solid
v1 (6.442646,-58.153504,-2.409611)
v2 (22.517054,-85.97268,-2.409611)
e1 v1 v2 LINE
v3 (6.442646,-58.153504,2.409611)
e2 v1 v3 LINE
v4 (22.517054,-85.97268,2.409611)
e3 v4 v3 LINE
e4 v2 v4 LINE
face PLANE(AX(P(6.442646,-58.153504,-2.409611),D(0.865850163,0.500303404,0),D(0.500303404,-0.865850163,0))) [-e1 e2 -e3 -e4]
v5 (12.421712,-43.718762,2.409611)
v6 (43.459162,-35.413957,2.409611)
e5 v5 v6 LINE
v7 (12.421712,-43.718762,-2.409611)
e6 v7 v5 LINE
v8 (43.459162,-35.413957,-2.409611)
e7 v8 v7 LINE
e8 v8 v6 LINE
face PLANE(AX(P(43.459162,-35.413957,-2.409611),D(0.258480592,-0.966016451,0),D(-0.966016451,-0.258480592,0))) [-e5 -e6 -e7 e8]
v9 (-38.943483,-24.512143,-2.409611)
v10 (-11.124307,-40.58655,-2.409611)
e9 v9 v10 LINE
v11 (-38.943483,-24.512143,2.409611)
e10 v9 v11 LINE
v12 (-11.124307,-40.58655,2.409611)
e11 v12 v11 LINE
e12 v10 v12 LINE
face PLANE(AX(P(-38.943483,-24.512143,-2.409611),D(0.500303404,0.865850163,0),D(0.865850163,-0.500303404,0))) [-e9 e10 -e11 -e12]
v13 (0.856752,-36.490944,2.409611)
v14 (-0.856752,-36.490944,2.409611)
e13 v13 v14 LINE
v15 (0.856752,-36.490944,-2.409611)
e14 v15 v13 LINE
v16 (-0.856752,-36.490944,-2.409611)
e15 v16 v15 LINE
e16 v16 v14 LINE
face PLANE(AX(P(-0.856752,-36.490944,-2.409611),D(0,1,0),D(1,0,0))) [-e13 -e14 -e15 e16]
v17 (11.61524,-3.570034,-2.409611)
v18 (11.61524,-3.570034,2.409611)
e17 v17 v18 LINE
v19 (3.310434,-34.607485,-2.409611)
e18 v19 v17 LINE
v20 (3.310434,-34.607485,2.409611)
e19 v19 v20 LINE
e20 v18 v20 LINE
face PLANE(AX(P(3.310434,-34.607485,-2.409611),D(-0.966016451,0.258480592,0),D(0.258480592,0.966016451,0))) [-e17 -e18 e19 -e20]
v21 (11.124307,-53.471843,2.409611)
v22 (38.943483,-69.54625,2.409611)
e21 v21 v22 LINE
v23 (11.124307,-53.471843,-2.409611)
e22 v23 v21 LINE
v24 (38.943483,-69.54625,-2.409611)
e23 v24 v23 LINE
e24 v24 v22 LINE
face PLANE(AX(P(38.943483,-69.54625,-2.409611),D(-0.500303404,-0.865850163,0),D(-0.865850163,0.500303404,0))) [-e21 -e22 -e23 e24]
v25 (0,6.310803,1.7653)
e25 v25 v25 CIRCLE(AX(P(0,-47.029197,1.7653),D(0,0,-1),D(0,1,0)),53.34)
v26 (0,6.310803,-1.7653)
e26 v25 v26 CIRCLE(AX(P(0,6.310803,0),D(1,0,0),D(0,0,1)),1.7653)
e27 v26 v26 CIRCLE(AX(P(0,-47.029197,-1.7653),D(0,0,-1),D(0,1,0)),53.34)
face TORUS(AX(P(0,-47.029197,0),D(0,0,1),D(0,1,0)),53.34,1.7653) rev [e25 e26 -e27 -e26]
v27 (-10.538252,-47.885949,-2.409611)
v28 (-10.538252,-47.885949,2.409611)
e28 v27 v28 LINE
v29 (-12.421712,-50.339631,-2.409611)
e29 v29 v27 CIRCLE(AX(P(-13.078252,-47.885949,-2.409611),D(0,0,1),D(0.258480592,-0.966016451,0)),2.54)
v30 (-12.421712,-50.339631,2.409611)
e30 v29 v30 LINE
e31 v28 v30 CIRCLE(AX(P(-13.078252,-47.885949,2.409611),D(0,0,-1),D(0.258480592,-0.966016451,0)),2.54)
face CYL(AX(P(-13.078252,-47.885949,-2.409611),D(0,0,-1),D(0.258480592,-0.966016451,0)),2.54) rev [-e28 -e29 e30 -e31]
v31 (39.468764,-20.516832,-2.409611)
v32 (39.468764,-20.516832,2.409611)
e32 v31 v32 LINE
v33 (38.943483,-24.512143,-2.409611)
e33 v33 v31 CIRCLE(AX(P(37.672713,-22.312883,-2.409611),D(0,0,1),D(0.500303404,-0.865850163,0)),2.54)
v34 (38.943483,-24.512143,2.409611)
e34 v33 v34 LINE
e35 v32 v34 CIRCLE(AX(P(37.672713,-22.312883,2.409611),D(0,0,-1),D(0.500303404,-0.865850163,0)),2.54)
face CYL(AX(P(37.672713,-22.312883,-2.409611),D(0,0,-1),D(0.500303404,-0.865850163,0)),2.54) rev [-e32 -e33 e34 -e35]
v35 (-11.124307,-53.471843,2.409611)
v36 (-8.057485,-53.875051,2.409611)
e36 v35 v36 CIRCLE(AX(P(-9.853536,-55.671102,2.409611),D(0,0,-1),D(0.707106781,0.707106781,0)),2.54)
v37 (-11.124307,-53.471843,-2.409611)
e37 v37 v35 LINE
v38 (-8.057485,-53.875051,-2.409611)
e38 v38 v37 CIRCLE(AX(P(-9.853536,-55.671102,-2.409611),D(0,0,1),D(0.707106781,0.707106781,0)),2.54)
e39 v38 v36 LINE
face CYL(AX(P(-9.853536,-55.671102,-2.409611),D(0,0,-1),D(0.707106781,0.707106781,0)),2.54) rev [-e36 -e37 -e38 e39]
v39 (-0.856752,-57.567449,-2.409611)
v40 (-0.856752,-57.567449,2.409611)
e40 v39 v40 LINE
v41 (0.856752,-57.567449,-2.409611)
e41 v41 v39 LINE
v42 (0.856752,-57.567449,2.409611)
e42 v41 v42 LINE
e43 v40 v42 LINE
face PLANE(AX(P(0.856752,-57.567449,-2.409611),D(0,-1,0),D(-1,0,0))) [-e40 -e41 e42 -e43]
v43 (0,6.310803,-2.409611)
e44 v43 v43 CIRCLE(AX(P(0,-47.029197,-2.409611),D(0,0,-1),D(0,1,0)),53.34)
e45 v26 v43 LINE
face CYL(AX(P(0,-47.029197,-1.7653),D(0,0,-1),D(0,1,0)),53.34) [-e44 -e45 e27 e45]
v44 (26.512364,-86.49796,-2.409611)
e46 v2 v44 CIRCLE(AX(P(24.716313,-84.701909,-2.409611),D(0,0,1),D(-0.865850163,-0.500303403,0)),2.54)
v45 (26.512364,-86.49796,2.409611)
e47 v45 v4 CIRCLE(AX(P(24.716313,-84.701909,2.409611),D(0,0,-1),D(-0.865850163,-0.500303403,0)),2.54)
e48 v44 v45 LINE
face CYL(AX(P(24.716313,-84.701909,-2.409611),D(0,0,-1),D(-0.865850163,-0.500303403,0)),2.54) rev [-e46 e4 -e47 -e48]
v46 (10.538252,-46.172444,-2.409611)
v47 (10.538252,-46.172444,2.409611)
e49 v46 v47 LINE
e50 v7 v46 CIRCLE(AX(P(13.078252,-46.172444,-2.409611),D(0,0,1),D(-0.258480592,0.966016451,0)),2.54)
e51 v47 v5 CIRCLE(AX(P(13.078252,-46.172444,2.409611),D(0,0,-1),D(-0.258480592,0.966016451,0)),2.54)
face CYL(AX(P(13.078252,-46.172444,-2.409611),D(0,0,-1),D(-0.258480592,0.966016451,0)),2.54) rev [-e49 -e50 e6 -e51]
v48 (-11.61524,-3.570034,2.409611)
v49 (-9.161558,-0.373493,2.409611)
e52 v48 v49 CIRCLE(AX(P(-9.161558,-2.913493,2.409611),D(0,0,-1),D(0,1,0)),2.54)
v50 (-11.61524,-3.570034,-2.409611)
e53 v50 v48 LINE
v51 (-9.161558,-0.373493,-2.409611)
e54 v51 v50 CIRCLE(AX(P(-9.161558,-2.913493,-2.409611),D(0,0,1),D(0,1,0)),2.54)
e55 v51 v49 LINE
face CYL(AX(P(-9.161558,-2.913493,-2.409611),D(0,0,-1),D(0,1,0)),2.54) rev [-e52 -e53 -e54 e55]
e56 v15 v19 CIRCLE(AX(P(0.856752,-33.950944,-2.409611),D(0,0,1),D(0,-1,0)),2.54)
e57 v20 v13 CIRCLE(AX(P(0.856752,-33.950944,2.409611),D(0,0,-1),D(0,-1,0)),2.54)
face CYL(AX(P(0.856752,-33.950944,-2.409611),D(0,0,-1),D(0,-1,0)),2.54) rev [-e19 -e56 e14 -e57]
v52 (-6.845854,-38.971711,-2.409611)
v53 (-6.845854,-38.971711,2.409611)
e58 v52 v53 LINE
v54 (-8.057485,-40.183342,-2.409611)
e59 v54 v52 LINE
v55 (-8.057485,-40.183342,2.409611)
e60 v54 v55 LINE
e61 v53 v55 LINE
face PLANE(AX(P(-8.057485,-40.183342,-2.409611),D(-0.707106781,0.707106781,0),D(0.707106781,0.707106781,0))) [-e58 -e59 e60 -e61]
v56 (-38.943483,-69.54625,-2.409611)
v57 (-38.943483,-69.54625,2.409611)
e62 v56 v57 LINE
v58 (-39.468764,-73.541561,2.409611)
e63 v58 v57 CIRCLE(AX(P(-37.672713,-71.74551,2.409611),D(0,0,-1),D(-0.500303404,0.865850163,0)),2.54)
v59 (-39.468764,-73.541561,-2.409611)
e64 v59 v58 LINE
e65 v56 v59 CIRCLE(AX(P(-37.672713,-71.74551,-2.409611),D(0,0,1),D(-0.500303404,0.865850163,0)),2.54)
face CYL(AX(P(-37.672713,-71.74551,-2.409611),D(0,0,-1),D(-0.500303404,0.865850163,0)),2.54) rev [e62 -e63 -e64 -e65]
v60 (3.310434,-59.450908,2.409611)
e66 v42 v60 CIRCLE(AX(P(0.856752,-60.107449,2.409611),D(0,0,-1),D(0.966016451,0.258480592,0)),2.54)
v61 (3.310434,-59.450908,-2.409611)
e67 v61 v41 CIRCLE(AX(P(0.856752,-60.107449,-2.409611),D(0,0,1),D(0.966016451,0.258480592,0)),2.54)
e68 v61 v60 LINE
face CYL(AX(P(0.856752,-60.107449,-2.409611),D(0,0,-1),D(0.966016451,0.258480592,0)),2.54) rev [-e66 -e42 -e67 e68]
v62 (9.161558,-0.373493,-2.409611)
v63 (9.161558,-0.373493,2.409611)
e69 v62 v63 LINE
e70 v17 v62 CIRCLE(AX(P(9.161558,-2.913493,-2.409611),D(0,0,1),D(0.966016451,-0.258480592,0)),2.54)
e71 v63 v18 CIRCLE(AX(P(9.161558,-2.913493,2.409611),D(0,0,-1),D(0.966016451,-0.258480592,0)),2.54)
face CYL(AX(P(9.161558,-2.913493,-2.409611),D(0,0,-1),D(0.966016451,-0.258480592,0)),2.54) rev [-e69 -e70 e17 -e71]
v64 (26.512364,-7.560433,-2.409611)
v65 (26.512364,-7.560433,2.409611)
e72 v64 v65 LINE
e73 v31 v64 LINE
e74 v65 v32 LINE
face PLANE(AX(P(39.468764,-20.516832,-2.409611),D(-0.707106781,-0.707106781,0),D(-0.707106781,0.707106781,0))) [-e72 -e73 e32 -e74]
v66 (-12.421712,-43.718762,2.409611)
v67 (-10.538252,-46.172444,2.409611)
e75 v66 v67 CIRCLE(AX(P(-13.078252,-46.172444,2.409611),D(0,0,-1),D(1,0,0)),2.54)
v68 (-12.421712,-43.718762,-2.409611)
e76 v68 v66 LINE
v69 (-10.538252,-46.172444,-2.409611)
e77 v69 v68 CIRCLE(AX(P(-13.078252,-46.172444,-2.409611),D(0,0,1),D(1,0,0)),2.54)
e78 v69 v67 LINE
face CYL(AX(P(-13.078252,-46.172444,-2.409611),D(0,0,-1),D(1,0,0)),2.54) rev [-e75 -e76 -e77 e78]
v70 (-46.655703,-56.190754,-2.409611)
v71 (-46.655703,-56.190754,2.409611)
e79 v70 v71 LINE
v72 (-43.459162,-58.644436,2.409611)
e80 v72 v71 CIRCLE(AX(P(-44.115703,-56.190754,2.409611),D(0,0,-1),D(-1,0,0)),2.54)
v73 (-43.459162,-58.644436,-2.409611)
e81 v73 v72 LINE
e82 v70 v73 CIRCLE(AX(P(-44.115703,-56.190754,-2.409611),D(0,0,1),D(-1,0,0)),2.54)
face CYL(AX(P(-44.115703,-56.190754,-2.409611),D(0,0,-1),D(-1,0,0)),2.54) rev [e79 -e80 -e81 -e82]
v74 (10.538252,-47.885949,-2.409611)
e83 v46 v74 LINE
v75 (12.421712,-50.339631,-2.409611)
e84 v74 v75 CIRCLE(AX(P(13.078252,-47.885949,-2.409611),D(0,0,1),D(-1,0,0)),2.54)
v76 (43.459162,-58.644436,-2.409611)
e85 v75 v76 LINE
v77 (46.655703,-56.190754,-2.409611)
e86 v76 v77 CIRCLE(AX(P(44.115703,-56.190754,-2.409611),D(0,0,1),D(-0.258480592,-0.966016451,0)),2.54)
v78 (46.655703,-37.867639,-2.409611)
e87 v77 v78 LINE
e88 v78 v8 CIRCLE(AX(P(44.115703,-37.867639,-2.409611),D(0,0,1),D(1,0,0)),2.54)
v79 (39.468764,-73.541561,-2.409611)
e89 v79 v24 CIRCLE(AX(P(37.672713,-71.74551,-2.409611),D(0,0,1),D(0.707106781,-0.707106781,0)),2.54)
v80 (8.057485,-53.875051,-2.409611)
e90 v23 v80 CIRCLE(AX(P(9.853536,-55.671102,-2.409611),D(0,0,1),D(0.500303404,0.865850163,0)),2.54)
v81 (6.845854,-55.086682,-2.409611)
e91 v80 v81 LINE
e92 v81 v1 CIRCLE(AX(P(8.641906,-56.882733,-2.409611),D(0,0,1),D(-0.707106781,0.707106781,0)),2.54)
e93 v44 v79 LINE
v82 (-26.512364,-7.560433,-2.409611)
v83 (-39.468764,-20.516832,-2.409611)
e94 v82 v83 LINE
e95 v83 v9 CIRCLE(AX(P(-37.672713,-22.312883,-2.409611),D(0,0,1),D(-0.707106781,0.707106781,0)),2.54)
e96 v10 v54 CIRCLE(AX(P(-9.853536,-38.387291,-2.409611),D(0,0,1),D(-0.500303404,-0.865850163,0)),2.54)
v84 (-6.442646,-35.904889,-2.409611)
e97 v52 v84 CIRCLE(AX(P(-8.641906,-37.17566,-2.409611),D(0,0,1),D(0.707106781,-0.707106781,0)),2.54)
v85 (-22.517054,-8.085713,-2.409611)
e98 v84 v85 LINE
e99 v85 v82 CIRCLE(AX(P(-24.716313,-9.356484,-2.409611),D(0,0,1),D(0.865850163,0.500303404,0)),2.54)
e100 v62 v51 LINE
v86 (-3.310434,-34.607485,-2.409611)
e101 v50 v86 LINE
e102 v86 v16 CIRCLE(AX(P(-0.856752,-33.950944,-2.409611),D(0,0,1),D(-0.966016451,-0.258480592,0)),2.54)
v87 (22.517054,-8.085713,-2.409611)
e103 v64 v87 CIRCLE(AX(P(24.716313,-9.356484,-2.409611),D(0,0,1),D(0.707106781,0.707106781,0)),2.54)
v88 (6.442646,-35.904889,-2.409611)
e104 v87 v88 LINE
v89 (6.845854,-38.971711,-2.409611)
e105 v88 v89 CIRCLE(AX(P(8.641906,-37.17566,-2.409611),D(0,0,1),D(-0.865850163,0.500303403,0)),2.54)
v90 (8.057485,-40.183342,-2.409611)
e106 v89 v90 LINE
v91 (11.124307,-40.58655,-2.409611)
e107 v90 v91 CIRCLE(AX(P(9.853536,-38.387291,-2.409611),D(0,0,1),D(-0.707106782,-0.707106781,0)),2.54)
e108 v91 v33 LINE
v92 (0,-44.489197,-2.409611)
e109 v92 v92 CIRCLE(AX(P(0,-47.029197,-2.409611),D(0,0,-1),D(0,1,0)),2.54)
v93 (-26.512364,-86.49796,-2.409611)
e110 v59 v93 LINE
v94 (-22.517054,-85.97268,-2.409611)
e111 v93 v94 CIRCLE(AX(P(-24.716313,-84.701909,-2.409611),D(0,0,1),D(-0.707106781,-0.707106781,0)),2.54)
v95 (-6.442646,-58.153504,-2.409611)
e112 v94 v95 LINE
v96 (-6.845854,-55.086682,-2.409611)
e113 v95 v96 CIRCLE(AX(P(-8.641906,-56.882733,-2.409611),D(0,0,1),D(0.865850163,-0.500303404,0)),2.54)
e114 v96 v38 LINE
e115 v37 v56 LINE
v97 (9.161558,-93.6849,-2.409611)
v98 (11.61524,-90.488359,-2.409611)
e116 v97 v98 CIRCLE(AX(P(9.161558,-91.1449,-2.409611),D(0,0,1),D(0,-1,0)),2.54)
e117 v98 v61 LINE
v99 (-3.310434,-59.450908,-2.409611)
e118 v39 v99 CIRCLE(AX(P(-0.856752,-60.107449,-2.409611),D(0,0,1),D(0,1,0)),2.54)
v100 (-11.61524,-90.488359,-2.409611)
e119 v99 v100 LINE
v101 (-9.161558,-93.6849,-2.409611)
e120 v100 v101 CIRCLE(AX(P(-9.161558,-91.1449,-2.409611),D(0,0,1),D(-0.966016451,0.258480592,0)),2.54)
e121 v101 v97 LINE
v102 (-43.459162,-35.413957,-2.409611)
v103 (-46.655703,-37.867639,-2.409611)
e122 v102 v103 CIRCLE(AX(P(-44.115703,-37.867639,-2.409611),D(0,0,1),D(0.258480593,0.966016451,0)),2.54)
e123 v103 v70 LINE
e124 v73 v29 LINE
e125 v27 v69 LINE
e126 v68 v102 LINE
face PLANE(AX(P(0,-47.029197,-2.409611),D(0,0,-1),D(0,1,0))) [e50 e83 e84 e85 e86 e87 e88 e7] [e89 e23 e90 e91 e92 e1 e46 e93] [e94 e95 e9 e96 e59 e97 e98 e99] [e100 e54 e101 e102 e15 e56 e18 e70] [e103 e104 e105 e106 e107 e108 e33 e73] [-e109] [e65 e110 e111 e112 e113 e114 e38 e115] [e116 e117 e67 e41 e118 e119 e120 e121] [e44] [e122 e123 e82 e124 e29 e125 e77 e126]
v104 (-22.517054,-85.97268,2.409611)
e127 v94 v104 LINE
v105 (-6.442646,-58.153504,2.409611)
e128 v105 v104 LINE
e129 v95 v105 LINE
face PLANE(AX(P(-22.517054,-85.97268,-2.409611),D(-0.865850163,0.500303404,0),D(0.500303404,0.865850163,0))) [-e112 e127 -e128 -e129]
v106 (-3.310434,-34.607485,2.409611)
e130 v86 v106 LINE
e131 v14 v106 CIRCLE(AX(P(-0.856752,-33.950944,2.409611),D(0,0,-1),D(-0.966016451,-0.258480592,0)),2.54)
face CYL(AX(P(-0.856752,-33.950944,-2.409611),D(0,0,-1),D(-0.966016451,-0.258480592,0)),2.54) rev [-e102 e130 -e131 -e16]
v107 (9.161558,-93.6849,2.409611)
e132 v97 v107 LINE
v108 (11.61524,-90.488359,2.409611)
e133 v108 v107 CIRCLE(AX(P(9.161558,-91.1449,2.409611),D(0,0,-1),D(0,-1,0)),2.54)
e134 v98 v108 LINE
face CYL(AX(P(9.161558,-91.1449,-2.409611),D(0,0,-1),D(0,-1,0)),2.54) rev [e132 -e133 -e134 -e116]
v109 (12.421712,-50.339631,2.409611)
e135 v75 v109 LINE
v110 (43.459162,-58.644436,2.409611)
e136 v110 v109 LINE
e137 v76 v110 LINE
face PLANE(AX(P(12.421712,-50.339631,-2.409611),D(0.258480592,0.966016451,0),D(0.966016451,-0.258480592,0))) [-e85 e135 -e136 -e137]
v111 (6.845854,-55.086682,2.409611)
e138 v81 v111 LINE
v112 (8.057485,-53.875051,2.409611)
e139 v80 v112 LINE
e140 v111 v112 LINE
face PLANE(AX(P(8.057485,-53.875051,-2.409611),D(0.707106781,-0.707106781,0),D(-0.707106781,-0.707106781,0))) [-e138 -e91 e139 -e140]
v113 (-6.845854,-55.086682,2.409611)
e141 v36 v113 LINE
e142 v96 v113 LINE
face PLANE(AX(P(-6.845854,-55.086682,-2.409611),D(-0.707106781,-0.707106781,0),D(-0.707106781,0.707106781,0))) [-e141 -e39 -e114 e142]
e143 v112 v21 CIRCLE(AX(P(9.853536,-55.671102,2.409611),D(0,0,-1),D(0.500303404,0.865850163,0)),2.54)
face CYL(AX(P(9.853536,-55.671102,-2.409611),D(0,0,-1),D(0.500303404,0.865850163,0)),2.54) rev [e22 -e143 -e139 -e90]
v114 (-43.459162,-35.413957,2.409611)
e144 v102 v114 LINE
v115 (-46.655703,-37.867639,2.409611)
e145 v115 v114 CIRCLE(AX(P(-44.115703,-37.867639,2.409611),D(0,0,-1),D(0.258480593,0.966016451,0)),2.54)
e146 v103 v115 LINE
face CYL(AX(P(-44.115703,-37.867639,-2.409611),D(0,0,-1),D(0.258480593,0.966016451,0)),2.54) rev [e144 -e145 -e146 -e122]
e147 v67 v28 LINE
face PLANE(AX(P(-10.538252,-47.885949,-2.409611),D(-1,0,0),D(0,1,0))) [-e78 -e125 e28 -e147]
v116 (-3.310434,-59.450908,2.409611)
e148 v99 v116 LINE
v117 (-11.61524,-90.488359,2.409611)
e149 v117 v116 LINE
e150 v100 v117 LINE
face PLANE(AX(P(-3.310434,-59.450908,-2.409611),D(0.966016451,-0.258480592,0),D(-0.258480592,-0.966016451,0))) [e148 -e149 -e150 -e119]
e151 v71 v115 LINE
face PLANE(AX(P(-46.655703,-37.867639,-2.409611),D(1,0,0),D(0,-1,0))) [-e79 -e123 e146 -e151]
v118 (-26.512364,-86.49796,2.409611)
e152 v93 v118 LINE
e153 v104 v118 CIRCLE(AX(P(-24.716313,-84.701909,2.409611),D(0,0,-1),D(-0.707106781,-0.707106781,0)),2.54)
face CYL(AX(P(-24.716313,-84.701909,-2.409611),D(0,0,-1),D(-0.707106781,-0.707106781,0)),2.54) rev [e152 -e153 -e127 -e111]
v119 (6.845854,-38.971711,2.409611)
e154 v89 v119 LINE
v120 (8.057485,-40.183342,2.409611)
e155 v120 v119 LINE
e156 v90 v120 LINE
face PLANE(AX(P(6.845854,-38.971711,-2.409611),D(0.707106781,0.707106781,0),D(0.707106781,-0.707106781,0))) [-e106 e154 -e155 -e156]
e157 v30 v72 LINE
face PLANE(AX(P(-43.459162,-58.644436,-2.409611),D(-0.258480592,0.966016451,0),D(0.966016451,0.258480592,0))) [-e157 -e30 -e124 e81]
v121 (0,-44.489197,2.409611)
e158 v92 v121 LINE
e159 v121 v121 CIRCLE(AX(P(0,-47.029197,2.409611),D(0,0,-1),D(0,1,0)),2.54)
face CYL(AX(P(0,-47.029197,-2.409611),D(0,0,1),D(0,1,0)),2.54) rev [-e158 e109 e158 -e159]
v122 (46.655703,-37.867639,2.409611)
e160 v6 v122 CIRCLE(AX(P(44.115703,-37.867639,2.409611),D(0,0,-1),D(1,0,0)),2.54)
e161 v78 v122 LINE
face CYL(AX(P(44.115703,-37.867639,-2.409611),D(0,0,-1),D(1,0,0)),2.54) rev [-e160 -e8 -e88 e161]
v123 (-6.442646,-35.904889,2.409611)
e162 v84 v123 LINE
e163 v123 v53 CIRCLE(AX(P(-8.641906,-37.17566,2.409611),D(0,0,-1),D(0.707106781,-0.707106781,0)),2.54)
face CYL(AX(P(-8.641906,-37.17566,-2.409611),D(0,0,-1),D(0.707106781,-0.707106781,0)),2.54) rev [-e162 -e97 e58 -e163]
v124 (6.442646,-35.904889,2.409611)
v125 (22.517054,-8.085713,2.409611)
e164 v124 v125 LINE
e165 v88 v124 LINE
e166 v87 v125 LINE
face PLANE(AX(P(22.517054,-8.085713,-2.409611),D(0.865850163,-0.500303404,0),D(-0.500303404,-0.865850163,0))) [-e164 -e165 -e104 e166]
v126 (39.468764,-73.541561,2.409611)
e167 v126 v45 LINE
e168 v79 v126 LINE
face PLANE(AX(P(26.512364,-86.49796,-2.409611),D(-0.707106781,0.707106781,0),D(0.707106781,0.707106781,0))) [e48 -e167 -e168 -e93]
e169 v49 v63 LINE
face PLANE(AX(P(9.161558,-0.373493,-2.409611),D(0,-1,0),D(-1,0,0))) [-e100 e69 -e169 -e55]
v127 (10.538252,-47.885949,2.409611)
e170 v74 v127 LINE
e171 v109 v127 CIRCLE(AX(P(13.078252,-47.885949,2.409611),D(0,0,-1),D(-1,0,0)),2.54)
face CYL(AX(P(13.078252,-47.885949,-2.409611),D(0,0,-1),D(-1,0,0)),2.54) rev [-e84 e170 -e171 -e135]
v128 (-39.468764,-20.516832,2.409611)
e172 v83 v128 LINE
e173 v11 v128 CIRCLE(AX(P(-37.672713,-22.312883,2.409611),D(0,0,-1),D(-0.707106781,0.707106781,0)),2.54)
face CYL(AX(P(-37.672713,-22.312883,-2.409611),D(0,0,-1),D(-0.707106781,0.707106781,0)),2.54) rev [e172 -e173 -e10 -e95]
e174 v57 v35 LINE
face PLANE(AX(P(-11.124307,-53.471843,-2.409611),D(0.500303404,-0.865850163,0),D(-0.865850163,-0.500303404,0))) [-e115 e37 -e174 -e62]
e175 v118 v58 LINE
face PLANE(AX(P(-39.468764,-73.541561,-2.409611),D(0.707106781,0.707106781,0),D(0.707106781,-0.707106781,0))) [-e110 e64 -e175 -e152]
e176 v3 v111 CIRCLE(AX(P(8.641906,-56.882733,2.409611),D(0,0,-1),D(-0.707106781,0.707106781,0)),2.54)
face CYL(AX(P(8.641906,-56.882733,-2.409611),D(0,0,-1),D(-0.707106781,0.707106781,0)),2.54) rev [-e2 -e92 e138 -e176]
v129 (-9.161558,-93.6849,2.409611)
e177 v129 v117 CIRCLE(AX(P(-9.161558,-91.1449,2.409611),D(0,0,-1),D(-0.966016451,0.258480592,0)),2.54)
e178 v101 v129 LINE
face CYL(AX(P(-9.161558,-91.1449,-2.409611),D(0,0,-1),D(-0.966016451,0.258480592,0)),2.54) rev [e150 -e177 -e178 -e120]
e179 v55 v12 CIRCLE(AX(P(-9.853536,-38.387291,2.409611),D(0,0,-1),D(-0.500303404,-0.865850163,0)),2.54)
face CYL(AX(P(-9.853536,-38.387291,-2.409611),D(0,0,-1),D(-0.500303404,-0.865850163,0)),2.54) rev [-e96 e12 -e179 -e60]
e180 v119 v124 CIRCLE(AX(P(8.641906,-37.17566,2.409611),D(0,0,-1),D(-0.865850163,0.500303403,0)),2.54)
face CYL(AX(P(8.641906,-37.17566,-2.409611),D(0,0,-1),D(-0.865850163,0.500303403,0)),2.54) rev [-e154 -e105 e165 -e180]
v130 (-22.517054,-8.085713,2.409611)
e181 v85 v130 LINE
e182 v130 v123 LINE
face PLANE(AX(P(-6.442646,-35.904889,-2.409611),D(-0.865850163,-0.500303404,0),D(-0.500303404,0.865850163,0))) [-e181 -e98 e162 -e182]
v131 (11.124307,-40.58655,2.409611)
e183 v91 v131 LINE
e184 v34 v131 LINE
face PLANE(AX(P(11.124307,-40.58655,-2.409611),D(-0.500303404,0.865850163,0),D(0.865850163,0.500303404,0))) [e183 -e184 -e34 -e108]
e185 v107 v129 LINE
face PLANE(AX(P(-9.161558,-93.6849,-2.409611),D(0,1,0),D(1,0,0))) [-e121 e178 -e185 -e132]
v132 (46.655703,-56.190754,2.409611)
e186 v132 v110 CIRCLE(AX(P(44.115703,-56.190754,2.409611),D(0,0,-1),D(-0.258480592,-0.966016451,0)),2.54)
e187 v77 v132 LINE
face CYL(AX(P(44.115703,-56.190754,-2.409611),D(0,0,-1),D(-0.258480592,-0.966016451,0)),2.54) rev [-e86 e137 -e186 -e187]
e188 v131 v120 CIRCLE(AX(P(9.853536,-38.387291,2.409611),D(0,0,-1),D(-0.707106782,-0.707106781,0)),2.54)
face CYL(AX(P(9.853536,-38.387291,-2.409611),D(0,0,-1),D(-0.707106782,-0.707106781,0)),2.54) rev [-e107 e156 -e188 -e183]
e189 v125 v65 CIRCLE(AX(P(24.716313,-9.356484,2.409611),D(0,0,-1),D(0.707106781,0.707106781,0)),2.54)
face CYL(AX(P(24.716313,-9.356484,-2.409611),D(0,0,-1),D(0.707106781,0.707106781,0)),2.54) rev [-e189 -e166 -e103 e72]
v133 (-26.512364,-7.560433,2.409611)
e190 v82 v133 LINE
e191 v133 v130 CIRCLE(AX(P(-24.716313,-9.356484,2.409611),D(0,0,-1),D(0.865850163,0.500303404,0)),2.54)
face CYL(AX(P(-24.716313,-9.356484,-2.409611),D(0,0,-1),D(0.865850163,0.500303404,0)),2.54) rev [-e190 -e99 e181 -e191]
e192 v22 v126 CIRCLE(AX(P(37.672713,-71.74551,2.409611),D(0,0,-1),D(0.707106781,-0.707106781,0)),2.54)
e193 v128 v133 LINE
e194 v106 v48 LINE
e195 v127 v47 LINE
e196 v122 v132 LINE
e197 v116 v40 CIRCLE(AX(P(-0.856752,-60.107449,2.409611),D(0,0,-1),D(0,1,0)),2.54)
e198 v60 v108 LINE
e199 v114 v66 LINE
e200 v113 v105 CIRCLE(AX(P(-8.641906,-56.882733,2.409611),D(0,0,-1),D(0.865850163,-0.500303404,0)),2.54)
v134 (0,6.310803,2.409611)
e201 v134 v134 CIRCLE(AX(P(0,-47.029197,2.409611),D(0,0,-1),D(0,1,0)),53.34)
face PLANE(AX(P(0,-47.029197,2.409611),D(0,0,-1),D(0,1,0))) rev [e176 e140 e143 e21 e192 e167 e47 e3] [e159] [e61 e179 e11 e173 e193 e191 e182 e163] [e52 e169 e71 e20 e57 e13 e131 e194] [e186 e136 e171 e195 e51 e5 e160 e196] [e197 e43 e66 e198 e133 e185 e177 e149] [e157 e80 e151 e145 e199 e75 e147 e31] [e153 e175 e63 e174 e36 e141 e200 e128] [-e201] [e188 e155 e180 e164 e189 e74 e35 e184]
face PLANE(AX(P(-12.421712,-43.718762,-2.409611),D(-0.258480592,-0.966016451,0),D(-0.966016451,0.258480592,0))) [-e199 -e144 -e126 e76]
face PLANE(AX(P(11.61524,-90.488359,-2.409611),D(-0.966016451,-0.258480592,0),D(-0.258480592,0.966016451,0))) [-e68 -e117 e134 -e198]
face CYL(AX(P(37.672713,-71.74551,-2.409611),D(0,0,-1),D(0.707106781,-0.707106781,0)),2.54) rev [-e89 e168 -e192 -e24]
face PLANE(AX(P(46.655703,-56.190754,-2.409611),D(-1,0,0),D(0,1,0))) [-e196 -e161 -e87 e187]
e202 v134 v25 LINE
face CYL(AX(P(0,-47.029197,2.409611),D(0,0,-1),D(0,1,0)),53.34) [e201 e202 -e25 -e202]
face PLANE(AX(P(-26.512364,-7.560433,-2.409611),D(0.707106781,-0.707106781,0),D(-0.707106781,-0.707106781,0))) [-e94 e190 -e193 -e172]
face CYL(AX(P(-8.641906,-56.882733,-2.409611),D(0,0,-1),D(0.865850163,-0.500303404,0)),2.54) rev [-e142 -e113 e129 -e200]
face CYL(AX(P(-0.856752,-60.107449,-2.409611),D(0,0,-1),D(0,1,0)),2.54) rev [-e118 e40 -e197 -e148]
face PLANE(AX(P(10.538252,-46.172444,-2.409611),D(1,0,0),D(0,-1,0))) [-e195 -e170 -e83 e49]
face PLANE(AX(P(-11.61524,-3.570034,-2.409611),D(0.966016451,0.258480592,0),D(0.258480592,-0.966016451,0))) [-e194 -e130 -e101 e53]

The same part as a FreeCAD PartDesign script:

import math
import FreeCAD as App
import Part
import Sketcher
Q = App.Units.Quantity

doc = App.newDocument("Part")
body = doc.addObject("PartDesign::Body", "Body")

# Sketch on YZ plane
sketch1 = body.newObject("Sketcher::SketchObject", "Sketch")
sketch1.AttachmentSupport = (doc.getObject("YZ_Plane"), [""])
sketch1.MapMode = "FlatFace"
sketch1.addGeometry(Part.LineSegment(App.Vector(6.3, 2.4, 0), App.Vector(-44.5, 2.4, 0)), False)
sketch1.addGeometry(Part.LineSegment(App.Vector(-44.5, 2.4, 0), App.Vector(-44.5, -2.4, 0)), False)
sketch1.addGeometry(Part.LineSegment(App.Vector(-44.5, -2.4, 0), App.Vector(6.3, -2.4, 0)), False)
sketch1.addGeometry(Part.LineSegment(App.Vector(6.3, -2.4, 0), App.Vector(6.3, -1.8, 0)), False)
sketch1.addGeometry(Part.ArcOfCircle(Part.Circle(App.Vector(6.3, 0, 0), App.Vector(0, 0, 1), 1.8), math.radians(90), math.radians(270)), False)
sketch1.addGeometry(Part.LineSegment(App.Vector(6.3, 1.8, 0), App.Vector(6.3, 2.4, 0)), False)
sketch1.addGeometry(Part.LineSegment(App.Vector(-47, 2.4, 0), App.Vector(-47, -2.4, 0)), True)  # axis
sketch1.addConstraint(Sketcher.Constraint("Coincident", 0, 2, 1, 1))
sketch1.addConstraint(Sketcher.Constraint("Coincident", 1, 2, 2, 1))
sketch1.addConstraint(Sketcher.Constraint("Coincident", 2, 2, 3, 1))
sketch1.addConstraint(Sketcher.Constraint("Coincident", 3, 2, 4, 2))
sketch1.addConstraint(Sketcher.Constraint("Coincident", 4, 1, 5, 1))
sketch1.addConstraint(Sketcher.Constraint("Coincident", 5, 2, 0, 1))
sketch1.addConstraint(Sketcher.Constraint("Horizontal", 0))
sketch1.addConstraint(Sketcher.Constraint("Vertical", 1))
sketch1.addConstraint(Sketcher.Constraint("Horizontal", 2))
sketch1.addConstraint(Sketcher.Constraint("Vertical", 3))
sketch1.addConstraint(Sketcher.Constraint("Vertical", 5))
sketch1.addConstraint(Sketcher.Constraint("Vertical", 6))
sketch1.addConstraint(Sketcher.Constraint("Symmetric", 3, 2, 4, 1, -1))
sketch1.addConstraint(Sketcher.Constraint("Horizontal", 5, 2, 6, 1))
sketch1.addConstraint(Sketcher.Constraint("Horizontal", 2, 2, 6, 2))
sketch1.addConstraint(Sketcher.Constraint("Vertical", 4, 3, 2, 2))
sketch1.addConstraint(Sketcher.Constraint("Equal", 3, 5))
sketch1.addConstraint(Sketcher.Constraint("DistanceX", 0, 2, 0, 1, Q("2 in")))
sketch1.addConstraint(Sketcher.Constraint("Radius", 4, Q("0.0695 in")))
sketch1.addConstraint(Sketcher.Constraint("DistanceX", 6, 1, 0, 2, Q("0.1 in")))
sketch1.addConstraint(Sketcher.Constraint("DistanceY", 1, 2, 1, 1, 4.819222))
sketch1.addConstraint(Sketcher.Constraint("DistanceX", -1, 1, 4, 3, 6.310803))
revolution = body.newObject("PartDesign::Revolution", "Revolution")
revolution.Profile = sketch1
revolution.ReferenceAxis = (sketch1, ["Axis0"])
revolution.Angle = 360

# Sketch on XY plane
sketch2 = body.newObject("Sketcher::SketchObject", "Sketch001")
sketch2.AttachmentSupport = (doc.getObject("XY_Plane"), [""])
sketch2.MapMode = "FlatFace"
sketch2.AttachmentOffset = App.Placement(App.Vector(0, 0, -2.409611), App.Rotation())
sketch2.addGeometry(Part.LineSegment(App.Vector(-9.2, -0.4, 0), App.Vector(9.2, -0.4, 0)), False)
sketch2.addGeometry(Part.ArcOfCircle(Part.Circle(App.Vector(9.2, -2.9, 0), App.Vector(0, 0, 1), 2.5), math.radians(-15), math.radians(90)), False)
sketch2.addGeometry(Part.LineSegment(App.Vector(11.6, -3.6, 0), App.Vector(3.3, -34.6, 0)), False)
sketch2.addGeometry(Part.ArcOfCircle(Part.Circle(App.Vector(0.9, -34, 0), App.Vector(0, 0, 1), 2.5), math.radians(-90), math.radians(-15)), False)
sketch2.addGeometry(Part.LineSegment(App.Vector(0.9, -36.5, 0), App.Vector(-0.9, -36.5, 0)), False)
sketch2.addGeometry(Part.ArcOfCircle(Part.Circle(App.Vector(-0.9, -34, 0), App.Vector(0, 0, 1), 2.5), math.radians(-165), math.radians(-90)), False)
sketch2.addGeometry(Part.LineSegment(App.Vector(-3.3, -34.6, 0), App.Vector(-11.6, -3.6, 0)), False)
sketch2.addGeometry(Part.ArcOfCircle(Part.Circle(App.Vector(-9.2, -2.9, 0), App.Vector(0, 0, 1), 2.5), math.radians(90), math.radians(195)), False)
sketch2.addGeometry(Part.LineSegment(App.Vector(-11.1, -40.6, 0), App.Vector(-38.9, -24.5, 0)), False)
sketch2.addGeometry(Part.ArcOfCircle(Part.Circle(App.Vector(-37.7, -22.3, 0), App.Vector(0, 0, 1), 2.5), math.radians(135), math.radians(240)), False)
sketch2.addGeometry(Part.LineSegment(App.Vector(-39.5, -20.5, 0), App.Vector(-26.5, -7.6, 0)), False)
sketch2.addGeometry(Part.ArcOfCircle(Part.Circle(App.Vector(-24.7, -9.4, 0), App.Vector(0, 0, 1), 2.5), math.radians(30), math.radians(135)), False)
sketch2.addGeometry(Part.LineSegment(App.Vector(-22.5, -8.1, 0), App.Vector(-6.4, -35.9, 0)), False)
sketch2.addGeometry(Part.ArcOfCircle(Part.Circle(App.Vector(-8.6, -37.2, 0), App.Vector(0, 0, 1), 2.5), math.radians(-45), math.radians(30)), False)
sketch2.addGeometry(Part.LineSegment(App.Vector(-6.8, -39, 0), App.Vector(-8.1, -40.2, 0)), False)
sketch2.addGeometry(Part.ArcOfCircle(Part.Circle(App.Vector(-9.9, -38.4, 0), App.Vector(0, 0, 1), 2.5), math.radians(-120), math.radians(-45)), False)
sketch2.addGeometry(Part.LineSegment(App.Vector(-12.4, -50.3, 0), App.Vector(-43.5, -58.6, 0)), False)
sketch2.addGeometry(Part.ArcOfCircle(Part.Circle(App.Vector(-44.1, -56.2, 0), App.Vector(0, 0, 1), 2.5), math.radians(-180), math.radians(-75)), False)
sketch2.addGeometry(Part.LineSegment(App.Vector(-46.7, -56.2, 0), App.Vector(-46.7, -37.9, 0)), False)
sketch2.addGeometry(Part.ArcOfCircle(Part.Circle(App.Vector(-44.1, -37.9, 0), App.Vector(0, 0, 1), 2.5), math.radians(75), math.radians(180)), False)
sketch2.addGeometry(Part.LineSegment(App.Vector(-43.5, -35.4, 0), App.Vector(-12.4, -43.7, 0)), False)
sketch2.addGeometry(Part.ArcOfCircle(Part.Circle(App.Vector(-13.1, -46.2, 0), App.Vector(0, 0, 1), 2.5), math.radians(0), math.radians(75)), False)
sketch2.addGeometry(Part.LineSegment(App.Vector(-10.5, -46.2, 0), App.Vector(-10.5, -47.9, 0)), False)
sketch2.addGeometry(Part.ArcOfCircle(Part.Circle(App.Vector(-13.1, -47.9, 0), App.Vector(0, 0, 1), 2.5), math.radians(-75), math.radians(0)), False)
sketch2.addGeometry(Part.LineSegment(App.Vector(-6.4, -58.2, 0), App.Vector(-22.5, -86, 0)), False)
sketch2.addGeometry(Part.ArcOfCircle(Part.Circle(App.Vector(-24.7, -84.7, 0), App.Vector(0, 0, 1), 2.5), math.radians(-135), math.radians(-30)), False)
sketch2.addGeometry(Part.LineSegment(App.Vector(-26.5, -86.5, 0), App.Vector(-39.5, -73.5, 0)), False)
sketch2.addGeometry(Part.ArcOfCircle(Part.Circle(App.Vector(-37.7, -71.7, 0), App.Vector(0, 0, 1), 2.5), math.radians(120), math.radians(225)), False)
sketch2.addGeometry(Part.LineSegment(App.Vector(-38.9, -69.5, 0), App.Vector(-11.1, -53.5, 0)), False)
sketch2.addGeometry(Part.ArcOfCircle(Part.Circle(App.Vector(-9.9, -55.7, 0), App.Vector(0, 0, 1), 2.5), math.radians(45), math.radians(120)), False)
sketch2.addGeometry(Part.LineSegment(App.Vector(-8.1, -53.9, 0), App.Vector(-6.8, -55.1, 0)), False)
sketch2.addGeometry(Part.ArcOfCircle(Part.Circle(App.Vector(-8.6, -56.9, 0), App.Vector(0, 0, 1), 2.5), math.radians(-30), math.radians(45)), False)
sketch2.addGeometry(Part.LineSegment(App.Vector(3.3, -59.5, 0), App.Vector(11.6, -90.5, 0)), False)
sketch2.addGeometry(Part.ArcOfCircle(Part.Circle(App.Vector(9.2, -91.1, 0), App.Vector(0, 0, 1), 2.5), math.radians(-90), math.radians(15)), False)
sketch2.addGeometry(Part.LineSegment(App.Vector(9.2, -93.7, 0), App.Vector(-9.2, -93.7, 0)), False)
sketch2.addGeometry(Part.ArcOfCircle(Part.Circle(App.Vector(-9.2, -91.1, 0), App.Vector(0, 0, 1), 2.5), math.radians(165), math.radians(270)), False)
sketch2.addGeometry(Part.LineSegment(App.Vector(-11.6, -90.5, 0), App.Vector(-3.3, -59.5, 0)), False)
sketch2.addGeometry(Part.ArcOfCircle(Part.Circle(App.Vector(-0.9, -60.1, 0), App.Vector(0, 0, 1), 2.5), math.radians(90), math.radians(165)), False)
sketch2.addGeometry(Part.LineSegment(App.Vector(-0.9, -57.6, 0), App.Vector(0.9, -57.6, 0)), False)
sketch2.addGeometry(Part.ArcOfCircle(Part.Circle(App.Vector(0.9, -60.1, 0), App.Vector(0, 0, 1), 2.5), math.radians(15), math.radians(90)), False)
sketch2.addGeometry(Part.LineSegment(App.Vector(11.1, -53.5, 0), App.Vector(38.9, -69.5, 0)), False)
sketch2.addGeometry(Part.ArcOfCircle(Part.Circle(App.Vector(37.7, -71.7, 0), App.Vector(0, 0, 1), 2.5), math.radians(-45), math.radians(60)), False)
sketch2.addGeometry(Part.LineSegment(App.Vector(39.5, -73.5, 0), App.Vector(26.5, -86.5, 0)), False)
sketch2.addGeometry(Part.ArcOfCircle(Part.Circle(App.Vector(24.7, -84.7, 0), App.Vector(0, 0, 1), 2.5), math.radians(-150), math.radians(-45)), False)
sketch2.addGeometry(Part.LineSegment(App.Vector(22.5, -86, 0), App.Vector(6.4, -58.2, 0)), False)
sketch2.addGeometry(Part.ArcOfCircle(Part.Circle(App.Vector(8.6, -56.9, 0), App.Vector(0, 0, 1), 2.5), math.radians(135), math.radians(210)), False)
sketch2.addGeometry(Part.LineSegment(App.Vector(6.8, -55.1, 0), App.Vector(8.1, -53.9, 0)), False)
sketch2.addGeometry(Part.ArcOfCircle(Part.Circle(App.Vector(9.9, -55.7, 0), App.Vector(0, 0, 1), 2.5), math.radians(60), math.radians(135)), False)
sketch2.addGeometry(Part.LineSegment(App.Vector(12.4, -43.7, 0), App.Vector(43.5, -35.4, 0)), False)
sketch2.addGeometry(Part.ArcOfCircle(Part.Circle(App.Vector(44.1, -37.9, 0), App.Vector(0, 0, 1), 2.5), math.radians(0), math.radians(105)), False)
sketch2.addGeometry(Part.LineSegment(App.Vector(46.7, -37.9, 0), App.Vector(46.7, -56.2, 0)), False)
sketch2.addGeometry(Part.ArcOfCircle(Part.Circle(App.Vector(44.1, -56.2, 0), App.Vector(0, 0, 1), 2.5), math.radians(-105), math.radians(0)), False)
sketch2.addGeometry(Part.LineSegment(App.Vector(43.5, -58.6, 0), App.Vector(12.4, -50.3, 0)), False)
sketch2.addGeometry(Part.ArcOfCircle(Part.Circle(App.Vector(13.1, -47.9, 0), App.Vector(0, 0, 1), 2.5), math.radians(-180), math.radians(-105)), False)
sketch2.addGeometry(Part.LineSegment(App.Vector(10.5, -47.9, 0), App.Vector(10.5, -46.2, 0)), False)
sketch2.addGeometry(Part.ArcOfCircle(Part.Circle(App.Vector(13.1, -46.2, 0), App.Vector(0, 0, 1), 2.5), math.radians(105), math.radians(180)), False)
sketch2.addGeometry(Part.LineSegment(App.Vector(6.4, -35.9, 0), App.Vector(22.5, -8.1, 0)), False)
sketch2.addGeometry(Part.ArcOfCircle(Part.Circle(App.Vector(24.7, -9.4, 0), App.Vector(0, 0, 1), 2.5), math.radians(45), math.radians(150)), False)
sketch2.addGeometry(Part.LineSegment(App.Vector(26.5, -7.6, 0), App.Vector(39.5, -20.5, 0)), False)
sketch2.addGeometry(Part.ArcOfCircle(Part.Circle(App.Vector(37.7, -22.3, 0), App.Vector(0, 0, 1), 2.5), math.radians(-60), math.radians(45)), False)
sketch2.addGeometry(Part.LineSegment(App.Vector(38.9, -24.5, 0), App.Vector(11.1, -40.6, 0)), False)
sketch2.addGeometry(Part.ArcOfCircle(Part.Circle(App.Vector(9.9, -38.4, 0), App.Vector(0, 0, 1), 2.5), math.radians(-135), math.radians(-60)), False)
sketch2.addGeometry(Part.LineSegment(App.Vector(8.1, -40.2, 0), App.Vector(6.8, -39, 0)), False)
sketch2.addGeometry(Part.ArcOfCircle(Part.Circle(App.Vector(8.6, -37.2, 0), App.Vector(0, 0, 1), 2.5), math.radians(150), math.radians(225)), False)
sketch2.addConstraint(Sketcher.Constraint("Tangent", 0, 2, 1, 2))
sketch2.addConstraint(Sketcher.Constraint("Tangent", 1, 1, 2, 1))
sketch2.addConstraint(Sketcher.Constraint("Tangent", 2, 2, 3, 2))
sketch2.addConstraint(Sketcher.Constraint("Tangent", 3, 1, 4, 1))
sketch2.addConstraint(Sketcher.Constraint("Tangent", 4, 2, 5, 2))
sketch2.addConstraint(Sketcher.Constraint("Tangent", 5, 1, 6, 1))
sketch2.addConstraint(Sketcher.Constraint("Tangent", 6, 2, 7, 2))
sketch2.addConstraint(Sketcher.Constraint("Tangent", 7, 1, 0, 1))
sketch2.addConstraint(Sketcher.Constraint("Tangent", 8, 2, 9, 2))
sketch2.addConstraint(Sketcher.Constraint("Tangent", 9, 1, 10, 1))
sketch2.addConstraint(Sketcher.Constraint("Tangent", 10, 2, 11, 2))
sketch2.addConstraint(Sketcher.Constraint("Tangent", 11, 1, 12, 1))
sketch2.addConstraint(Sketcher.Constraint("Tangent", 12, 2, 13, 2))
sketch2.addConstraint(Sketcher.Constraint("Tangent", 13, 1, 14, 1))
sketch2.addConstraint(Sketcher.Constraint("Tangent", 14, 2, 15, 2))
sketch2.addConstraint(Sketcher.Constraint("Tangent", 15, 1, 8, 1))
sketch2.addConstraint(Sketcher.Constraint("Tangent", 16, 2, 17, 2))
sketch2.addConstraint(Sketcher.Constraint("Tangent", 17, 1, 18, 1))
sketch2.addConstraint(Sketcher.Constraint("Tangent", 18, 2, 19, 2))
sketch2.addConstraint(Sketcher.Constraint("Tangent", 19, 1, 20, 1))
sketch2.addConstraint(Sketcher.Constraint("Tangent", 20, 2, 21, 2))
sketch2.addConstraint(Sketcher.Constraint("Tangent", 21, 1, 22, 1))
sketch2.addConstraint(Sketcher.Constraint("Tangent", 22, 2, 23, 2))
sketch2.addConstraint(Sketcher.Constraint("Tangent", 23, 1, 16, 1))
sketch2.addConstraint(Sketcher.Constraint("Tangent", 24, 2, 25, 2))
sketch2.addConstraint(Sketcher.Constraint("Tangent", 25, 1, 26, 1))
sketch2.addConstraint(Sketcher.Constraint("Tangent", 26, 2, 27, 2))
sketch2.addConstraint(Sketcher.Constraint("Tangent", 27, 1, 28, 1))
sketch2.addConstraint(Sketcher.Constraint("Tangent", 28, 2, 29, 2))
sketch2.addConstraint(Sketcher.Constraint("Tangent", 29, 1, 30, 1))
sketch2.addConstraint(Sketcher.Constraint("Tangent", 30, 2, 31, 2))
sketch2.addConstraint(Sketcher.Constraint("Tangent", 31, 1, 24, 1))
sketch2.addConstraint(Sketcher.Constraint("Tangent", 32, 2, 33, 2))
sketch2.addConstraint(Sketcher.Constraint("Tangent", 33, 1, 34, 1))
sketch2.addConstraint(Sketcher.Constraint("Tangent", 34, 2, 35, 2))
sketch2.addConstraint(Sketcher.Constraint("Tangent", 35, 1, 36, 1))
sketch2.addConstraint(Sketcher.Constraint("Tangent", 36, 2, 37, 2))
sketch2.addConstraint(Sketcher.Constraint("Tangent", 37, 1, 38, 1))
sketch2.addConstraint(Sketcher.Constraint("Tangent", 38, 2, 39, 2))
sketch2.addConstraint(Sketcher.Constraint("Tangent", 39, 1, 32, 1))
sketch2.addConstraint(Sketcher.Constraint("Tangent", 40, 2, 41, 2))
sketch2.addConstraint(Sketcher.Constraint("Tangent", 41, 1, 42, 1))
sketch2.addConstraint(Sketcher.Constraint("Tangent", 42, 2, 43, 2))
sketch2.addConstraint(Sketcher.Constraint("Tangent", 43, 1, 44, 1))
sketch2.addConstraint(Sketcher.Constraint("Tangent", 44, 2, 45, 2))
sketch2.addConstraint(Sketcher.Constraint("Tangent", 45, 1, 46, 1))
sketch2.addConstraint(Sketcher.Constraint("Tangent", 46, 2, 47, 2))
sketch2.addConstraint(Sketcher.Constraint("Tangent", 47, 1, 40, 1))
sketch2.addConstraint(Sketcher.Constraint("Tangent", 48, 2, 49, 2))
sketch2.addConstraint(Sketcher.Constraint("Tangent", 49, 1, 50, 1))
sketch2.addConstraint(Sketcher.Constraint("Tangent", 50, 2, 51, 2))
sketch2.addConstraint(Sketcher.Constraint("Tangent", 51, 1, 52, 1))
sketch2.addConstraint(Sketcher.Constraint("Tangent", 52, 2, 53, 2))
sketch2.addConstraint(Sketcher.Constraint("Tangent", 53, 1, 54, 1))
sketch2.addConstraint(Sketcher.Constraint("Tangent", 54, 2, 55, 2))
sketch2.addConstraint(Sketcher.Constraint("Tangent", 55, 1, 48, 1))
sketch2.addConstraint(Sketcher.Constraint("Tangent", 56, 2, 57, 2))
sketch2.addConstraint(Sketcher.Constraint("Tangent", 57, 1, 58, 1))
sketch2.addConstraint(Sketcher.Constraint("Tangent", 58, 2, 59, 2))
sketch2.addConstraint(Sketcher.Constraint("Tangent", 59, 1, 60, 1))
sketch2.addConstraint(Sketcher.Constraint("Tangent", 60, 2, 61, 2))
sketch2.addConstraint(Sketcher.Constraint("Tangent", 61, 1, 62, 1))
sketch2.addConstraint(Sketcher.Constraint("Tangent", 62, 2, 63, 2))
sketch2.addConstraint(Sketcher.Constraint("Tangent", 63, 1, 56, 1))
sketch2.addConstraint(Sketcher.Constraint("Horizontal", 0))
sketch2.addConstraint(Sketcher.Constraint("Horizontal", 4))
sketch2.addConstraint(Sketcher.Constraint("Vertical", 18))
sketch2.addConstraint(Sketcher.Constraint("Vertical", 22))
sketch2.addConstraint(Sketcher.Constraint("Horizontal", 34))
sketch2.addConstraint(Sketcher.Constraint("Horizontal", 38))
sketch2.addConstraint(Sketcher.Constraint("Vertical", 50))
sketch2.addConstraint(Sketcher.Constraint("Vertical", 54))
sketch2.addConstraint(Sketcher.Constraint("Equal", 1, 3))
sketch2.addConstraint(Sketcher.Constraint("Equal", 3, 5))
sketch2.addConstraint(Sketcher.Constraint("Equal", 5, 7))
sketch2.addConstraint(Sketcher.Constraint("Equal", 7, 9))
sketch2.addConstraint(Sketcher.Constraint("Equal", 9, 11))
sketch2.addConstraint(Sketcher.Constraint("Equal", 11, 13))
sketch2.addConstraint(Sketcher.Constraint("Equal", 13, 15))
sketch2.addConstraint(Sketcher.Constraint("Equal", 15, 17))
sketch2.addConstraint(Sketcher.Constraint("Equal", 17, 19))
sketch2.addConstraint(Sketcher.Constraint("Equal", 19, 21))
sketch2.addConstraint(Sketcher.Constraint("Equal", 21, 23))
sketch2.addConstraint(Sketcher.Constraint("Equal", 23, 25))
sketch2.addConstraint(Sketcher.Constraint("Equal", 25, 27))
sketch2.addConstraint(Sketcher.Constraint("Equal", 27, 29))
sketch2.addConstraint(Sketcher.Constraint("Equal", 29, 31))
sketch2.addConstraint(Sketcher.Constraint("Equal", 31, 33))
sketch2.addConstraint(Sketcher.Constraint("Equal", 33, 35))
sketch2.addConstraint(Sketcher.Constraint("Equal", 35, 37))
sketch2.addConstraint(Sketcher.Constraint("Equal", 37, 39))
sketch2.addConstraint(Sketcher.Constraint("Equal", 39, 41))
sketch2.addConstraint(Sketcher.Constraint("Equal", 41, 43))
sketch2.addConstraint(Sketcher.Constraint("Equal", 43, 45))
sketch2.addConstraint(Sketcher.Constraint("Equal", 45, 47))
sketch2.addConstraint(Sketcher.Constraint("Equal", 47, 49))
sketch2.addConstraint(Sketcher.Constraint("Equal", 49, 51))
sketch2.addConstraint(Sketcher.Constraint("Equal", 51, 53))
sketch2.addConstraint(Sketcher.Constraint("Equal", 53, 55))
sketch2.addConstraint(Sketcher.Constraint("Equal", 55, 57))
sketch2.addConstraint(Sketcher.Constraint("Equal", 57, 59))
sketch2.addConstraint(Sketcher.Constraint("Equal", 59, 61))
sketch2.addConstraint(Sketcher.Constraint("Equal", 61, 63))
sketch2.addConstraint(Sketcher.Constraint("Symmetric", 27, 3, 41, 3, -2))
sketch2.addConstraint(Sketcher.Constraint("Symmetric", 25, 3, 43, 3, -2))
sketch2.addConstraint(Sketcher.Constraint("Symmetric", 31, 3, 45, 3, -2))
sketch2.addConstraint(Sketcher.Constraint("Symmetric", 29, 3, 47, 3, -2))
sketch2.addConstraint(Sketcher.Constraint("Symmetric", 19, 3, 49, 3, -2))
sketch2.addConstraint(Sketcher.Constraint("Symmetric", 23, 3, 53, 3, -2))
sketch2.addConstraint(Sketcher.Constraint("Symmetric", 11, 3, 57, 3, -2))
sketch2.addConstraint(Sketcher.Constraint("Symmetric", 9, 3, 59, 3, -2))
sketch2.addConstraint(Sketcher.Constraint("Symmetric", 15, 3, 61, 3, -2))
sketch2.addConstraint(Sketcher.Constraint("Symmetric", 13, 3, 63, 3, -2))
sketch2.addConstraint(Sketcher.Constraint("Symmetric", 2, 2, 5, 1, -2))
sketch2.addConstraint(Sketcher.Constraint("Symmetric", 32, 2, 35, 1, -2))
sketch2.addConstraint(Sketcher.Constraint("Parallel", 10, 14))
sketch2.addConstraint(Sketcher.Constraint("Perpendicular", 6, 16))
sketch2.addConstraint(Sketcher.Constraint("Perpendicular", 2, 20))
sketch2.addConstraint(Sketcher.Constraint("Perpendicular", 8, 24))
sketch2.addConstraint(Sketcher.Constraint("Perpendicular", 14, 26))
sketch2.addConstraint(Sketcher.Constraint("Perpendicular", 12, 28))
sketch2.addConstraint(Sketcher.Constraint("Parallel", 26, 30))
sketch2.addConstraint(Sketcher.Constraint("Perpendicular", 16, 32))
sketch2.addConstraint(Sketcher.Constraint("Perpendicular", 24, 40))
sketch2.addConstraint(Sketcher.Constraint("Perpendicular", 30, 42))
sketch2.addConstraint(Sketcher.Constraint("Perpendicular", 32, 48))
sketch2.addConstraint(Sketcher.Constraint("Perpendicular", 36, 52))
sketch2.addConstraint(Sketcher.Constraint("Vertical", 11, 3, 25, 3))
sketch2.addConstraint(Sketcher.Constraint("Vertical", 9, 3, 27, 3))
sketch2.addConstraint(Sketcher.Constraint("Vertical", 15, 3, 29, 3))
sketch2.addConstraint(Sketcher.Constraint("Vertical", 1, 3, 33, 3))
sketch2.addConstraint(Sketcher.Constraint("Vertical", 5, 3, 37, 3))
sketch2.addConstraint(Sketcher.Constraint("Equal", 34, 18))
sketch2.addConstraint(Sketcher.Constraint("Equal", 38, 22))
sketch2.addConstraint(Sketcher.Constraint("Equal", 6, 8))
sketch2.addConstraint(Sketcher.Constraint("Radius", 1, Q("0.1 in")))
sketch2.addConstraint(Sketcher.Constraint("DistanceY", 33, 3, -1, 1, 91.1449))
sketch2.addConstraint(Sketcher.Constraint("Distance", 2, 32.129319))
sketch2.addConstraint(Sketcher.Constraint("DistanceX", 0, 1, 0, 2, 18.323116))
sketch2.addConstraint(Sketcher.Constraint("DistanceX", 4, 2, 4, 1, 1.713505))
sketch2.addConstraint(Sketcher.Constraint("DistanceY", 13, 3, -1, 1, 37.17566))
sketch2.addConstraint(Sketcher.Constraint("DistanceY", 15, 3, -1, 1, 38.387291))
sketch2.addConstraint(Sketcher.Constraint("DistanceY", 19, 3, -1, 1, 37.867639))
sketch2.addConstraint(Sketcher.Constraint("DistanceY", 25, 3, -1, 1, 84.701909))
sketch2.addConstraint(Sketcher.Constraint("DistanceY", 27, 3, -1, 1, 71.74551))
sketch2.addConstraint(Sketcher.Constraint("DistanceX", 20, 2, -1, 1, 12.421712))
sketch2.addConstraint(Sketcher.Constraint("DistanceY", 1, 3, -1, 1, 2.913493))
sketch2.addConstraint(Sketcher.Constraint("DistanceX", 9, 3, -1, 1, 37.672713))
pocket1 = body.newObject("PartDesign::Pocket", "Pocket")
pocket1.Profile = sketch2
pocket1.Length = Q("0.3 in")
pocket1.Reversed = True

doc.recompute()
